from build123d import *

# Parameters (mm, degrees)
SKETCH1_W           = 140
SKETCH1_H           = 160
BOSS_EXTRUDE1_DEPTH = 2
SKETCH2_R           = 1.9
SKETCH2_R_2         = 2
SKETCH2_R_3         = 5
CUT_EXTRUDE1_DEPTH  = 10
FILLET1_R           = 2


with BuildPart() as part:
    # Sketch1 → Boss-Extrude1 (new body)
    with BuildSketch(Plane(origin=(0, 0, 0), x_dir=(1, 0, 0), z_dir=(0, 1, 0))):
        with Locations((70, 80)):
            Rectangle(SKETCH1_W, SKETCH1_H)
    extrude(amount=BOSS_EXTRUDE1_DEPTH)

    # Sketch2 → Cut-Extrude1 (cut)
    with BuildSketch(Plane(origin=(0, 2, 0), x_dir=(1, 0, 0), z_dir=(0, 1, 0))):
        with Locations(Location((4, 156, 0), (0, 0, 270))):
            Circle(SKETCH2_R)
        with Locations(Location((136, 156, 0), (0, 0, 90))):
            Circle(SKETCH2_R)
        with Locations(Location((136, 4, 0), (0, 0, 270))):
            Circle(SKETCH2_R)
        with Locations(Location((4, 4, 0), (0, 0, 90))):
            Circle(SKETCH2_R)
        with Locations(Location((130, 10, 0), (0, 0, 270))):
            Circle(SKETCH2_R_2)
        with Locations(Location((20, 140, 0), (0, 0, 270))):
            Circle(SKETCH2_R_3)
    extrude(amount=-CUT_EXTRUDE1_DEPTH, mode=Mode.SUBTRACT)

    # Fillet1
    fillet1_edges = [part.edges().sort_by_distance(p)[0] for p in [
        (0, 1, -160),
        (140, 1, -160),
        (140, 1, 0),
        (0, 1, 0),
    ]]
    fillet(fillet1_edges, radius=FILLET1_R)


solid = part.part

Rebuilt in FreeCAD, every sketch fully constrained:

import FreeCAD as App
import Part
import Sketcher
from FreeCAD import Vector
Q = App.Units.Quantity


def edges_at(feature, points):
    """Names of the edges that pass closest to the given points."""
    edges = feature.Shape.Edges
    near = lambda p: min(range(len(edges)), key=lambda i: edges[i].distToShape(Part.Vertex(*p))[0])
    return sorted({f"Edge{near(p) + 1}" for p in points})

doc = App.newDocument("Part")
body = doc.addObject("PartDesign::Body", "Body")

# Sketch on XZ plane
sketch1 = doc.addObject("Sketcher::SketchObject", "Sketch")
body.addObject(sketch1)
sketch1.AttachmentSupport = (doc.XZ_Plane, [""])
sketch1.MapMode = "FlatFace"
sketch1.addGeometry(Part.LineSegment(Vector(0, -160, 0), Vector(0, 0, 0)), False)
sketch1.addGeometry(Part.LineSegment(Vector(0, 0, 0), Vector(140, 0, 0)), False)
sketch1.addGeometry(Part.LineSegment(Vector(140, 0, 0), Vector(140, -160, 0)), False)
sketch1.addGeometry(Part.LineSegment(Vector(140, -160, 0), Vector(0, -160, 0)), False)
sketch1.addConstraint(Sketcher.Constraint("Coincident", 0, 2, 1, 1))
sketch1.addConstraint(Sketcher.Constraint("Coincident", 1, 2, 2, 1))
sketch1.addConstraint(Sketcher.Constraint("Coincident", 2, 2, 3, 1))
sketch1.addConstraint(Sketcher.Constraint("Coincident", 3, 2, 0, 1))
sketch1.addConstraint(Sketcher.Constraint("Vertical", 0))
sketch1.addConstraint(Sketcher.Constraint("Horizontal", 1))
sketch1.addConstraint(Sketcher.Constraint("Vertical", 2))
sketch1.addConstraint(Sketcher.Constraint("Horizontal", 3))
sketch1.addConstraint(Sketcher.Constraint("Coincident", 0, 2, -1, 1))
sketch1.addConstraint(Sketcher.Constraint("DistanceX", 1, 1, 1, 2, Q("140 mm")))
sketch1.addConstraint(Sketcher.Constraint("DistanceY", 0, 1, 0, 2, Q("160 mm")))
pad1 = doc.addObject("PartDesign::Pad", "Pad")
body.addObject(pad1)
pad1.Profile = sketch1
pad1.Length = 2
pad1.Reversed = True

# Sketch on XZ plane
sketch2 = doc.addObject("Sketcher::SketchObject", "Sketch001")
body.addObject(sketch2)
sketch2.AttachmentSupport = (doc.XZ_Plane, [""])
sketch2.MapMode = "FlatFace"
sketch2.AttachmentOffset = App.Placement(Vector(0, 0, -2), App.Rotation())
sketch2.addGeometry(Part.Circle(Vector(4, -156, 0), Vector(0, 0, 1), 1.9), False)
sketch2.addGeometry(Part.Circle(Vector(136, -156, 0), Vector(0, 0, 1), 1.9), False)
sketch2.addGeometry(Part.Circle(Vector(136, -4, 0), Vector(0, 0, 1), 1.9), False)
sketch2.addGeometry(Part.Circle(Vector(4, -4, 0), Vector(0, 0, 1), 1.9), False)
sketch2.addGeometry(Part.Circle(Vector(130, -10, 0), Vector(0, 0, 1), 2), False)
sketch2.addGeometry(Part.Circle(Vector(20, -140, 0), Vector(0, 0, 1), 5), False)
sketch2.addConstraint(Sketcher.Constraint("Equal", 0, 1))
sketch2.addConstraint(Sketcher.Constraint("Equal", 1, 2))
sketch2.addConstraint(Sketcher.Constraint("Equal", 2, 3))
sketch2.addConstraint(Sketcher.Constraint("Horizontal", 0, 3, 1, 3))
sketch2.addConstraint(Sketcher.Constraint("Horizontal", 2, 3, 3, 3))
sketch2.addConstraint(Sketcher.Constraint("Vertical", 1, 3, 2, 3))
sketch2.addConstraint(Sketcher.Constraint("Vertical", 0, 3, 3, 3))
sketch2.addConstraint(Sketcher.Constraint("Diameter", 4, Q("4 mm")))
sketch2.addConstraint(Sketcher.Constraint("Diameter", 5, Q("10 mm")))
sketch2.addConstraint(Sketcher.Constraint("Diameter", 0, Q("3.8 mm")))
sketch2.addConstraint(Sketcher.Constraint("DistanceX", -1, 1, 0, 3, Q("4 mm")))
sketch2.addConstraint(Sketcher.Constraint("DistanceY", 0, 3, -1, 1, Q("156 mm")))
sketch2.addConstraint(Sketcher.Constraint("DistanceX", -1, 1, 1, 3, Q("136 mm")))
sketch2.addConstraint(Sketcher.Constraint("DistanceY", 2, 3, -1, 1, Q("4 mm")))
sketch2.addConstraint(Sketcher.Constraint("DistanceX", -1, 1, 4, 3, Q("130 mm")))
sketch2.addConstraint(Sketcher.Constraint("DistanceY", 4, 3, -1, 1, Q("10 mm")))
sketch2.addConstraint(Sketcher.Constraint("DistanceX", -1, 1, 5, 3, Q("20 mm")))
sketch2.addConstraint(Sketcher.Constraint("DistanceY", 5, 3, -1, 1, Q("140 mm")))
pocket1 = doc.addObject("PartDesign::Pocket", "Pocket")
body.addObject(pocket1)
pocket1.Profile = sketch2
pocket1.Length = 10
pocket1.Reversed = True
doc.recompute()

fillet = doc.addObject("PartDesign::Fillet", "Fillet")
body.addObject(fillet)
fillet.Base = (pocket1, edges_at(pocket1, [
    (0, 1, -160),
    (140, 1, -160),
    (140, 1, 0),
    (0, 1, 0),
]))
fillet.Radius = 2

doc.recompute()
